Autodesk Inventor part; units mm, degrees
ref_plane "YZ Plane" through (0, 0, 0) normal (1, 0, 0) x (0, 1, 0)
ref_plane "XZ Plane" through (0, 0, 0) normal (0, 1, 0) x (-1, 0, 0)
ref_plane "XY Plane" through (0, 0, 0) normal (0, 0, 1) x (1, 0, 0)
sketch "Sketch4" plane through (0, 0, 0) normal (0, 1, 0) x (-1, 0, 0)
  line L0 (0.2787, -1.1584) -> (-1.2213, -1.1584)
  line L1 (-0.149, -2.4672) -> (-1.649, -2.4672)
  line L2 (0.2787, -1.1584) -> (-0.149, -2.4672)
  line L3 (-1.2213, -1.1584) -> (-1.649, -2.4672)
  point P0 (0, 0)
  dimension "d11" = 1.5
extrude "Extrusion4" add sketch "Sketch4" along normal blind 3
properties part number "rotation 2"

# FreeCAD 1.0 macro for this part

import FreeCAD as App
import Part
import Sketcher
from FreeCAD import Vector
Q = App.Units.Quantity

doc = App.newDocument("Part")
params = doc.addObject("Spreadsheet::Sheet", "Params")
for row, (alias, value) in enumerate([
    ("sketch1_width", "1.5 mm"),
    ("pad1_length", "3 mm"),
], start=1):
    params.set(f"A{row}", alias)
    params.set(f"B{row}", "=" + value)
    params.setAlias(f"B{row}", alias)

body = doc.addObject("PartDesign::Body", "Body")

# Sketch on XZ plane
sketch1 = body.newObject("Sketcher::SketchObject", "Sketch")
sketch1.AttachmentSupport = (doc.getObject("XZ_Plane"), [""])
sketch1.MapMode = "FlatFace"
sketch1.addGeometry([
    Part.LineSegment(Vector(0.149, -2.4672, 0), Vector(-0.2787, -1.1584, 0)),
    Part.LineSegment(Vector(-0.2787, -1.1584, 0), Vector(1.2213, -1.1584, 0)),
    Part.LineSegment(Vector(1.2213, -1.1584, 0), Vector(1.649, -2.4672, 0)),
    Part.LineSegment(Vector(1.649, -2.4672, 0), Vector(0.149, -2.4672, 0)),
], False)
sketch1.addConstraint([
    Sketcher.Constraint("Coincident", 0, 2, 1, 1),
    Sketcher.Constraint("Coincident", 1, 2, 2, 1),
    Sketcher.Constraint("Coincident", 2, 2, 3, 1),
    Sketcher.Constraint("Coincident", 3, 2, 0, 1),
    Sketcher.Constraint("Horizontal", 1),
    Sketcher.Constraint("Horizontal", 3),
    Sketcher.Constraint("Parallel", 0, 2),
    Sketcher.Constraint("DistanceX", 1, 1, 1, 2, Q("1.5 mm")),
    Sketcher.Constraint("Distance", 0, Q("1.377 mm")),
    Sketcher.Constraint("DistanceX", -1, 1, 2, 2, Q("1.649 mm")),
    Sketcher.Constraint("DistanceX", 0, 2, -1, 1, Q("0.2787 mm")),
    Sketcher.Constraint("DistanceY", 0, 2, -1, 1, Q("1.1584 mm")),
])
sketch1.setExpression("Constraints[7]", "Params.sketch1_width")
pad1 = body.newObject("PartDesign::Pad", "Pad")
pad1.Profile = sketch1
pad1.setExpression("Length", "Params.pad1_length")
pad1.Reversed = True

doc.recompute()
